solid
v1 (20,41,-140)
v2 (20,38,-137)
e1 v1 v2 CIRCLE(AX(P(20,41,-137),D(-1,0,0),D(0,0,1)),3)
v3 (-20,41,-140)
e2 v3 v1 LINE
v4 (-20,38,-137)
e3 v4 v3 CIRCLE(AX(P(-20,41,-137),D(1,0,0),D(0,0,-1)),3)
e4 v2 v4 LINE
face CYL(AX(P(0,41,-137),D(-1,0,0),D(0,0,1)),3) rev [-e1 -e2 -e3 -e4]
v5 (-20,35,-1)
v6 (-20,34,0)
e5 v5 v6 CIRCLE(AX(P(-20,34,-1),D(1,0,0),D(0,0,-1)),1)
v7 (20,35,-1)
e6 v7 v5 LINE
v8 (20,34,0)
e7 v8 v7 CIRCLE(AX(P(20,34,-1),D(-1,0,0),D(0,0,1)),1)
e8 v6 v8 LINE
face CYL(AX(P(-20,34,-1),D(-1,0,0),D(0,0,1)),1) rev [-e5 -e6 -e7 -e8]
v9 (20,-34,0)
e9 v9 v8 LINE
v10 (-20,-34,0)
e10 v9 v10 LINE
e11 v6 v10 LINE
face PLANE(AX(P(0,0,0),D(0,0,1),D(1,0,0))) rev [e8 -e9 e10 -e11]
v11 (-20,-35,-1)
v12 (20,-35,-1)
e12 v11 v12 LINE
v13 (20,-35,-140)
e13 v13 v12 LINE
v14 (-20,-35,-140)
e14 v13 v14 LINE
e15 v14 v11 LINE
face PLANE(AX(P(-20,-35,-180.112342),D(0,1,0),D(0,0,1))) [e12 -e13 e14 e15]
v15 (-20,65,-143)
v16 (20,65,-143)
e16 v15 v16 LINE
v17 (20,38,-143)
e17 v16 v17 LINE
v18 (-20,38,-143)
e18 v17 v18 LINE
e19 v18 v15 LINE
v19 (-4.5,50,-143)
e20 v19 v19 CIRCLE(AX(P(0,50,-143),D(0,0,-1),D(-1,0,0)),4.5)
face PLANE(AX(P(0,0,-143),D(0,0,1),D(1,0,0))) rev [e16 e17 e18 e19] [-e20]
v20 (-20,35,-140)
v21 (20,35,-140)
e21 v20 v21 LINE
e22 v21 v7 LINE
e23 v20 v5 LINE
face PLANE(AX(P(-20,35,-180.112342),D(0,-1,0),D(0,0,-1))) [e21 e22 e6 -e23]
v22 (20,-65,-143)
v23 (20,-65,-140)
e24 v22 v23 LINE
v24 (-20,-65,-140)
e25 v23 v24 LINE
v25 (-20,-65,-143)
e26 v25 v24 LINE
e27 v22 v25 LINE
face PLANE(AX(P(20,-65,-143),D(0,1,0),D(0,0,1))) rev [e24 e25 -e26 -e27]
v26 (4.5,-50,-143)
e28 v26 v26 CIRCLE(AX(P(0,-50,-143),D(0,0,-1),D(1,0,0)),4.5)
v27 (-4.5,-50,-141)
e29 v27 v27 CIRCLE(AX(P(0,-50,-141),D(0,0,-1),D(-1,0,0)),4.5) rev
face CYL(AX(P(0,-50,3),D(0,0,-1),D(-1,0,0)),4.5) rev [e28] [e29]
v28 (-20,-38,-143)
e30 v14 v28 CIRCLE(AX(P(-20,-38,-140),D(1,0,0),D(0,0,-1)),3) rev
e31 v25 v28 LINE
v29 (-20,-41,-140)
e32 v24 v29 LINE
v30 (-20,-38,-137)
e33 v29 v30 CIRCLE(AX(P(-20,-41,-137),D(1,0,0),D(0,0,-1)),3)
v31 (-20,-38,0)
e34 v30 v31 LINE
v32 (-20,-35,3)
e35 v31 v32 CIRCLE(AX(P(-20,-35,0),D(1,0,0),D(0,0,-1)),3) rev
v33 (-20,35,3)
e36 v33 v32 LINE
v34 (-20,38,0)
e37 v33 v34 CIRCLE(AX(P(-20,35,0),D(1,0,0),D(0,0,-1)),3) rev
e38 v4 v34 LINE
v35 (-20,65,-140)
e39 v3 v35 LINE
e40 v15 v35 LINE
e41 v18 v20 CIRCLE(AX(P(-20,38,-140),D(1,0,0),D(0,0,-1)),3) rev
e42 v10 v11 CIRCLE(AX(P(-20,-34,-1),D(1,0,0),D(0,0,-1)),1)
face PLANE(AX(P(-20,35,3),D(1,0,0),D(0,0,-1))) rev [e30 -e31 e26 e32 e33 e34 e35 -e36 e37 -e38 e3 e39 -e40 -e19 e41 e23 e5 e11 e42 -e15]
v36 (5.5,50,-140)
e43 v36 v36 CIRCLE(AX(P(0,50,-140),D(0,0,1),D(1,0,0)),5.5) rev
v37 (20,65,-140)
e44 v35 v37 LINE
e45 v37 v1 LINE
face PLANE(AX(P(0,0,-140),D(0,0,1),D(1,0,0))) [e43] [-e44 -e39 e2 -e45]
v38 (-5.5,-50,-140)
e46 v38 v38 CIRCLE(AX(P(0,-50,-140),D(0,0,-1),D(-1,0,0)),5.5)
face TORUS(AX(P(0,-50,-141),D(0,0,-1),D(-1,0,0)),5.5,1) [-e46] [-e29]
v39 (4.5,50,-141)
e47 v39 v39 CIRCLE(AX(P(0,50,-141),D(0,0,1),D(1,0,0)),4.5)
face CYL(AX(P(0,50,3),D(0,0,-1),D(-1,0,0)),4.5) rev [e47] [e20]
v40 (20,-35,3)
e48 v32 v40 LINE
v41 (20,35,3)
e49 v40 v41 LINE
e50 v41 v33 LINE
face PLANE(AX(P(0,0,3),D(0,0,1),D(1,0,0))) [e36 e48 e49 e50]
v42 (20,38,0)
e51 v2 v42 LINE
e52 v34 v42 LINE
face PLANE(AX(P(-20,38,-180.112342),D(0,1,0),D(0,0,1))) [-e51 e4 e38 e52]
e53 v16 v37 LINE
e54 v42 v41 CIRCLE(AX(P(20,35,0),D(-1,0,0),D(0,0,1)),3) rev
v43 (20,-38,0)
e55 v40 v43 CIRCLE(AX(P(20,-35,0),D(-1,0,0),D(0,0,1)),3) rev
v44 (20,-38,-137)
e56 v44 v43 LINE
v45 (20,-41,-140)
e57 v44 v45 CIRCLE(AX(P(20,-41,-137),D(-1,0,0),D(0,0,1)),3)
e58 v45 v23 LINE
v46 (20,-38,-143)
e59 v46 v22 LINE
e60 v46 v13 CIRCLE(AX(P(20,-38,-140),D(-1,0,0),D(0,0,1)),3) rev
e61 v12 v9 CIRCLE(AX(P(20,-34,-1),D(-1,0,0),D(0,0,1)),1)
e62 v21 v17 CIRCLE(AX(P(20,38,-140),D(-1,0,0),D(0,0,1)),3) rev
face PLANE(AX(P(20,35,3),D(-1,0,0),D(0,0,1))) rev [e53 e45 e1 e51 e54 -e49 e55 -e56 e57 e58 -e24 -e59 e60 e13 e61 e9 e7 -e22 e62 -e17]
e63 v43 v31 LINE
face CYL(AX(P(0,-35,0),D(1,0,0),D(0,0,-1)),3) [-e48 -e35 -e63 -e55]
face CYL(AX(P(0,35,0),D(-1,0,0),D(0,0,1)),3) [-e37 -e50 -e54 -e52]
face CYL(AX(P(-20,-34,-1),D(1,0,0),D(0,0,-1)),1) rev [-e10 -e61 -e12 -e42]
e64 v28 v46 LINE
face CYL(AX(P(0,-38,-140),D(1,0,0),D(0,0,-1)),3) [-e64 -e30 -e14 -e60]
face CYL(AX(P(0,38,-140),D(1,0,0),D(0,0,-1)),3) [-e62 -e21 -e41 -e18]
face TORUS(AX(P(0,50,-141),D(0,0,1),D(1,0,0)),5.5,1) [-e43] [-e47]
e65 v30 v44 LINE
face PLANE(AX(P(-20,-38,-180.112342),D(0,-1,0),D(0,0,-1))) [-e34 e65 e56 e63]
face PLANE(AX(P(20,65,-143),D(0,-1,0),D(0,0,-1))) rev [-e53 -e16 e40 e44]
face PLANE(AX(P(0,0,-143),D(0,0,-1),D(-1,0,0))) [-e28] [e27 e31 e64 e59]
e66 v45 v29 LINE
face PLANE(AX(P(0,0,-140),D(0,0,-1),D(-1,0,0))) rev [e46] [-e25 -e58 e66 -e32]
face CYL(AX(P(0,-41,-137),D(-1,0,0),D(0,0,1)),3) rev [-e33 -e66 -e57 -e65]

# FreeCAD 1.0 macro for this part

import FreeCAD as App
import Part
import Sketcher

V = App.Vector
Q = App.Units.Quantity


def edges_at(feature, points):
    """Names of the edges that pass closest to the given points."""
    edges = feature.Shape.Edges
    near = lambda p: min(range(len(edges)), key=lambda i: edges[i].distToShape(Part.Vertex(*p))[0])
    return sorted({f"Edge{near(p) + 1}" for p in points})

doc = App.newDocument("Part")
body = doc.addObject("PartDesign::Body", "Body")

sketch1 = body.newObject("Sketcher::SketchObject", "Sketch")
sketch1.AttachmentSupport = (doc.getObject("XY_Plane"), [""])
sketch1.MapMode = "FlatFace"
sketch1.addGeometry(Part.LineSegment(V(-20, 35, 0), V(-20, -35, 0)), False)
sketch1.addGeometry(Part.LineSegment(V(-20, -35, 0), V(20, -35, 0)), False)
sketch1.addGeometry(Part.LineSegment(V(20, -35, 0), V(20, 35, 0)), False)
sketch1.addGeometry(Part.LineSegment(V(20, 35, 0), V(-20, 35, 0)), False)
sketch1.addConstraint(Sketcher.Constraint("Coincident", 0, 2, 1, 1))
sketch1.addConstraint(Sketcher.Constraint("Coincident", 1, 2, 2, 1))
sketch1.addConstraint(Sketcher.Constraint("Coincident", 2, 2, 3, 1))
sketch1.addConstraint(Sketcher.Constraint("Coincident", 3, 2, 0, 1))
sketch1.addConstraint(Sketcher.Constraint("Vertical", 0))
sketch1.addConstraint(Sketcher.Constraint("Horizontal", 1))
sketch1.addConstraint(Sketcher.Constraint("Vertical", 2))
sketch1.addConstraint(Sketcher.Constraint("Horizontal", 3))
sketch1.addConstraint(Sketcher.Constraint("Symmetric", 0, 2, 2, 2, -1, 1))
sketch1.addConstraint(Sketcher.Constraint("DistanceX", 1, 1, 1, 2, Q("40 mm")))
sketch1.addConstraint(Sketcher.Constraint("DistanceY", 0, 2, 0, 1, Q("70 mm")))
pad1 = body.newObject("PartDesign::Pad", "Pad")
pad1.Profile = sketch1
pad1.Length = 3

sketch2 = body.newObject("Sketcher::SketchObject", "Sketch001")
sketch2.AttachmentSupport = (doc.getObject("XY_Plane"), [""])
sketch2.MapMode = "FlatFace"
sketch2.AttachmentOffset = App.Placement(V(0, 0, 3), App.Rotation())
sketch2.addGeometry(Part.LineSegment(V(-20, 38, 0), V(-20, 35, 0)), False)
sketch2.addGeometry(Part.LineSegment(V(-20, 35, 0), V(20, 35, 0)), False)
sketch2.addGeometry(Part.LineSegment(V(20, 35, 0), V(20, 38, 0)), False)
sketch2.addGeometry(Part.LineSegment(V(20, 38, 0), V(-20, 38, 0)), False)
sketch2.addGeometry(Part.LineSegment(V(-20, -35, 0), V(-20, -38, 0)), False)
sketch2.addGeometry(Part.LineSegment(V(-20, -38, 0), V(20, -38, 0)), False)
sketch2.addGeometry(Part.LineSegment(V(20, -38, 0), V(20, -35, 0)), False)
sketch2.addGeometry(Part.LineSegment(V(20, -35, 0), V(-20, -35, 0)), False)
sketch2.addConstraint(Sketcher.Constraint("Coincident", 0, 2, 1, 1))
sketch2.addConstraint(Sketcher.Constraint("Coincident", 1, 2, 2, 1))
sketch2.addConstraint(Sketcher.Constraint("Coincident", 2, 2, 3, 1))
sketch2.addConstraint(Sketcher.Constraint("Coincident", 3, 2, 0, 1))
sketch2.addConstraint(Sketcher.Constraint("Coincident", 4, 2, 5, 1))
sketch2.addConstraint(Sketcher.Constraint("Coincident", 5, 2, 6, 1))
sketch2.addConstraint(Sketcher.Constraint("Coincident", 6, 2, 7, 1))
sketch2.addConstraint(Sketcher.Constraint("Coincident", 7, 2, 4, 1))
sketch2.addConstraint(Sketcher.Constraint("Vertical", 0))
sketch2.addConstraint(Sketcher.Constraint("Horizontal", 1))
sketch2.addConstraint(Sketcher.Constraint("Vertical", 2))
sketch2.addConstraint(Sketcher.Constraint("Horizontal", 3))
sketch2.addConstraint(Sketcher.Constraint("Vertical", 4))
sketch2.addConstraint(Sketcher.Constraint("Horizontal", 5))
sketch2.addConstraint(Sketcher.Constraint("Vertical", 6))
sketch2.addConstraint(Sketcher.Constraint("Horizontal", 7))
sketch2.addConstraint(Sketcher.Constraint("Symmetric", 2, 2, 4, 2, -1, 1))
sketch2.addConstraint(Sketcher.Constraint("Symmetric", 0, 2, 6, 2, -1, 1))
sketch2.addConstraint(Sketcher.Constraint("Vertical", 3, 2, 4, 2))
sketch2.addConstraint(Sketcher.Constraint("DistanceX", 1, 1, 1, 2, Q("40 mm")))
sketch2.addConstraint(Sketcher.Constraint("DistanceY", 0, 2, 0, 1, Q("3 mm")))
sketch2.addConstraint(Sketcher.Constraint("DistanceY", -1, 1, 0, 2, Q("35 mm")))
pad2 = body.newObject("PartDesign::Pad", "Pad001")
pad2.Profile = sketch2
pad2.Length = 143
pad2.Reversed = True

sketch3 = body.newObject("Sketcher::SketchObject", "Sketch002")
sketch3.AttachmentSupport = (doc.getObject("XY_Plane"), [""])
sketch3.MapMode = "FlatFace"
sketch3.AttachmentOffset = App.Placement(V(0, 0, -140), App.Rotation())
sketch3.addGeometry(Part.LineSegment(V(20, 65, 0), V(20, 35, 0)), False)
sketch3.addGeometry(Part.LineSegment(V(20, 35, 0), V(-20, 35, 0)), False)
sketch3.addGeometry(Part.LineSegment(V(-20, 35, 0), V(-20, 65, 0)), False)
sketch3.addGeometry(Part.LineSegment(V(-20, 65, 0), V(20, 65, 0)), False)
sketch3.addGeometry(Part.LineSegment(V(20, -35, 0), V(20, -65, 0)), False)
sketch3.addGeometry(Part.LineSegment(V(20, -65, 0), V(-20, -65, 0)), False)
sketch3.addGeometry(Part.LineSegment(V(-20, -65, 0), V(-20, -35, 0)), False)
sketch3.addGeometry(Part.LineSegment(V(-20, -35, 0), V(20, -35, 0)), False)
sketch3.addConstraint(Sketcher.Constraint("Coincident", 0, 2, 1, 1))
sketch3.addConstraint(Sketcher.Constraint("Coincident", 1, 2, 2, 1))
sketch3.addConstraint(Sketcher.Constraint("Coincident", 2, 2, 3, 1))
sketch3.addConstraint(Sketcher.Constraint("Coincident", 3, 2, 0, 1))
sketch3.addConstraint(Sketcher.Constraint("Coincident", 4, 2, 5, 1))
sketch3.addConstraint(Sketcher.Constraint("Coincident", 5, 2, 6, 1))
sketch3.addConstraint(Sketcher.Constraint("Coincident", 6, 2, 7, 1))
sketch3.addConstraint(Sketcher.Constraint("Coincident", 7, 2, 4, 1))
sketch3.addConstraint(Sketcher.Constraint("Vertical", 0))
sketch3.addConstraint(Sketcher.Constraint("Horizontal", 1))
sketch3.addConstraint(Sketcher.Constraint("Vertical", 2))
sketch3.addConstraint(Sketcher.Constraint("Horizontal", 3))
sketch3.addConstraint(Sketcher.Constraint("Vertical", 4))
sketch3.addConstraint(Sketcher.Constraint("Horizontal", 5))
sketch3.addConstraint(Sketcher.Constraint("Vertical", 6))
sketch3.addConstraint(Sketcher.Constraint("Horizontal", 7))
sketch3.addConstraint(Sketcher.Constraint("Symmetric", 2, 2, 4, 2, -1, 1))
sketch3.addConstraint(Sketcher.Constraint("Symmetric", 0, 2, 6, 2, -1, 1))
sketch3.addConstraint(Sketcher.Constraint("Vertical", 3, 2, 4, 2))
sketch3.addConstraint(Sketcher.Constraint("DistanceX", 1, 2, 1, 1, Q("40 mm")))
sketch3.addConstraint(Sketcher.Constraint("DistanceY", 0, 2, 0, 1, Q("30 mm")))
sketch3.addConstraint(Sketcher.Constraint("DistanceY", -1, 1, 0, 2, Q("35 mm")))
pad3 = body.newObject("PartDesign::Pad", "Pad002")
pad3.Profile = sketch3
pad3.Length = 3
pad3.Reversed = True

sketch4 = body.newObject("Sketcher::SketchObject", "Sketch003")
sketch4.AttachmentSupport = (doc.getObject("XY_Plane"), [""])
sketch4.MapMode = "FlatFace"
sketch4.AttachmentOffset = App.Placement(V(0, 0, -143), App.Rotation())
sketch4.addGeometry(Part.Circle(V(0, 50, 0), V(0, 0, 1), 4.5), False)
sketch4.addGeometry(Part.Circle(V(0, -50, 0), V(0, 0, 1), 4.5), False)
sketch4.addConstraint(Sketcher.Constraint("Equal", 0, 1))
sketch4.addConstraint(Sketcher.Constraint("Symmetric", 0, 3, 1, 3, -1, 1))
sketch4.addConstraint(Sketcher.Constraint("PointOnObject", 0, 3, -2))
sketch4.addConstraint(Sketcher.Constraint("Diameter", 0, Q("9 mm")))
sketch4.addConstraint(Sketcher.Constraint("DistanceY", -1, 1, 0, 3, Q("50 mm")))
pocket1 = body.newObject("PartDesign::Pocket", "Pocket")
pocket1.Profile = sketch4
pocket1.Type = "ThroughAll"
pocket1.Reversed = True
doc.recompute()

fillet = body.newObject("PartDesign::Fillet", "Fillet")
fillet.Base = (pocket1, edges_at(pocket1, [(0, 35, 0), (0, -35, 0)]))
fillet.Radius = 1
doc.recompute()

fillet2 = body.newObject("PartDesign::Fillet", "Fillet001")
fillet2.Base = (fillet, edges_at(fillet, [(0, 38, 3), (0, -38, 3)]))
fillet2.Radius = 3
doc.recompute()

fillet3 = body.newObject("PartDesign::Fillet", "Fillet002")
fillet3.Base = (fillet2, edges_at(fillet2, [(0, 38, -140), (0, -38, -140)]))
fillet3.Radius = 3
doc.recompute()

fillet4 = body.newObject("PartDesign::Fillet", "Fillet003")
fillet4.Base = (fillet3, edges_at(fillet3, [(0, 35, -143), (0, -35, -143)]))
fillet4.Radius = 3
doc.recompute()

fillet5 = body.newObject("PartDesign::Fillet", "Fillet004")
fillet5.Base = (fillet4, edges_at(fillet4, [(4.5, 50, -140), (4.5, -50, -140)]))
fillet5.Radius = 1

doc.recompute()
